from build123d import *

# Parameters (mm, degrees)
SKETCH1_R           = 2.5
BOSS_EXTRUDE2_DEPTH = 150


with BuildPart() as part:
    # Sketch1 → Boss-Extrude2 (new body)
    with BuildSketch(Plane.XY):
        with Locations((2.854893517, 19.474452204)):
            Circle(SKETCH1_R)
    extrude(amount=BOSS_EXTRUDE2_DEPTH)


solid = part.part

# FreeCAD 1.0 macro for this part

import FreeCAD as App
import Part
import Sketcher

V = App.Vector
Q = App.Units.Quantity

doc = App.newDocument("Part")
params = doc.addObject("Spreadsheet::Sheet", "Params")
for row, (alias, value) in enumerate([
    ("sketch1_diameter", "5 mm"),
    ("pad1_length", "150 mm"),
], start=1):
    params.set(f"A{row}", alias)
    params.set(f"B{row}", "=" + value)
    params.setAlias(f"B{row}", alias)

body = doc.addObject("PartDesign::Body", "Body")

# Sketch on XY plane
sketch1 = body.newObject("Sketcher::SketchObject", "Sketch")
sketch1.AttachmentSupport = (doc.getObject("XY_Plane"), [""])
sketch1.MapMode = "FlatFace"
sketch1.addGeometry(Part.Circle(V(2.9, 19.5, 0), V(0, 0, 1), 2.5), False)
sketch1.addConstraint([
    Sketcher.Constraint("Diameter", 0, Q("5 mm")),
    Sketcher.Constraint("DistanceX", -1, 1, 0, 3, Q("2.854894 mm")),
    Sketcher.Constraint("DistanceY", -1, 1, 0, 3, Q("19.474452 mm")),
])
sketch1.setExpression("Constraints[0]", "Params.sketch1_diameter")
pad1 = body.newObject("PartDesign::Pad", "Pad")
pad1.Profile = sketch1
pad1.setExpression("Length", "Params.pad1_length")

doc.recompute()
